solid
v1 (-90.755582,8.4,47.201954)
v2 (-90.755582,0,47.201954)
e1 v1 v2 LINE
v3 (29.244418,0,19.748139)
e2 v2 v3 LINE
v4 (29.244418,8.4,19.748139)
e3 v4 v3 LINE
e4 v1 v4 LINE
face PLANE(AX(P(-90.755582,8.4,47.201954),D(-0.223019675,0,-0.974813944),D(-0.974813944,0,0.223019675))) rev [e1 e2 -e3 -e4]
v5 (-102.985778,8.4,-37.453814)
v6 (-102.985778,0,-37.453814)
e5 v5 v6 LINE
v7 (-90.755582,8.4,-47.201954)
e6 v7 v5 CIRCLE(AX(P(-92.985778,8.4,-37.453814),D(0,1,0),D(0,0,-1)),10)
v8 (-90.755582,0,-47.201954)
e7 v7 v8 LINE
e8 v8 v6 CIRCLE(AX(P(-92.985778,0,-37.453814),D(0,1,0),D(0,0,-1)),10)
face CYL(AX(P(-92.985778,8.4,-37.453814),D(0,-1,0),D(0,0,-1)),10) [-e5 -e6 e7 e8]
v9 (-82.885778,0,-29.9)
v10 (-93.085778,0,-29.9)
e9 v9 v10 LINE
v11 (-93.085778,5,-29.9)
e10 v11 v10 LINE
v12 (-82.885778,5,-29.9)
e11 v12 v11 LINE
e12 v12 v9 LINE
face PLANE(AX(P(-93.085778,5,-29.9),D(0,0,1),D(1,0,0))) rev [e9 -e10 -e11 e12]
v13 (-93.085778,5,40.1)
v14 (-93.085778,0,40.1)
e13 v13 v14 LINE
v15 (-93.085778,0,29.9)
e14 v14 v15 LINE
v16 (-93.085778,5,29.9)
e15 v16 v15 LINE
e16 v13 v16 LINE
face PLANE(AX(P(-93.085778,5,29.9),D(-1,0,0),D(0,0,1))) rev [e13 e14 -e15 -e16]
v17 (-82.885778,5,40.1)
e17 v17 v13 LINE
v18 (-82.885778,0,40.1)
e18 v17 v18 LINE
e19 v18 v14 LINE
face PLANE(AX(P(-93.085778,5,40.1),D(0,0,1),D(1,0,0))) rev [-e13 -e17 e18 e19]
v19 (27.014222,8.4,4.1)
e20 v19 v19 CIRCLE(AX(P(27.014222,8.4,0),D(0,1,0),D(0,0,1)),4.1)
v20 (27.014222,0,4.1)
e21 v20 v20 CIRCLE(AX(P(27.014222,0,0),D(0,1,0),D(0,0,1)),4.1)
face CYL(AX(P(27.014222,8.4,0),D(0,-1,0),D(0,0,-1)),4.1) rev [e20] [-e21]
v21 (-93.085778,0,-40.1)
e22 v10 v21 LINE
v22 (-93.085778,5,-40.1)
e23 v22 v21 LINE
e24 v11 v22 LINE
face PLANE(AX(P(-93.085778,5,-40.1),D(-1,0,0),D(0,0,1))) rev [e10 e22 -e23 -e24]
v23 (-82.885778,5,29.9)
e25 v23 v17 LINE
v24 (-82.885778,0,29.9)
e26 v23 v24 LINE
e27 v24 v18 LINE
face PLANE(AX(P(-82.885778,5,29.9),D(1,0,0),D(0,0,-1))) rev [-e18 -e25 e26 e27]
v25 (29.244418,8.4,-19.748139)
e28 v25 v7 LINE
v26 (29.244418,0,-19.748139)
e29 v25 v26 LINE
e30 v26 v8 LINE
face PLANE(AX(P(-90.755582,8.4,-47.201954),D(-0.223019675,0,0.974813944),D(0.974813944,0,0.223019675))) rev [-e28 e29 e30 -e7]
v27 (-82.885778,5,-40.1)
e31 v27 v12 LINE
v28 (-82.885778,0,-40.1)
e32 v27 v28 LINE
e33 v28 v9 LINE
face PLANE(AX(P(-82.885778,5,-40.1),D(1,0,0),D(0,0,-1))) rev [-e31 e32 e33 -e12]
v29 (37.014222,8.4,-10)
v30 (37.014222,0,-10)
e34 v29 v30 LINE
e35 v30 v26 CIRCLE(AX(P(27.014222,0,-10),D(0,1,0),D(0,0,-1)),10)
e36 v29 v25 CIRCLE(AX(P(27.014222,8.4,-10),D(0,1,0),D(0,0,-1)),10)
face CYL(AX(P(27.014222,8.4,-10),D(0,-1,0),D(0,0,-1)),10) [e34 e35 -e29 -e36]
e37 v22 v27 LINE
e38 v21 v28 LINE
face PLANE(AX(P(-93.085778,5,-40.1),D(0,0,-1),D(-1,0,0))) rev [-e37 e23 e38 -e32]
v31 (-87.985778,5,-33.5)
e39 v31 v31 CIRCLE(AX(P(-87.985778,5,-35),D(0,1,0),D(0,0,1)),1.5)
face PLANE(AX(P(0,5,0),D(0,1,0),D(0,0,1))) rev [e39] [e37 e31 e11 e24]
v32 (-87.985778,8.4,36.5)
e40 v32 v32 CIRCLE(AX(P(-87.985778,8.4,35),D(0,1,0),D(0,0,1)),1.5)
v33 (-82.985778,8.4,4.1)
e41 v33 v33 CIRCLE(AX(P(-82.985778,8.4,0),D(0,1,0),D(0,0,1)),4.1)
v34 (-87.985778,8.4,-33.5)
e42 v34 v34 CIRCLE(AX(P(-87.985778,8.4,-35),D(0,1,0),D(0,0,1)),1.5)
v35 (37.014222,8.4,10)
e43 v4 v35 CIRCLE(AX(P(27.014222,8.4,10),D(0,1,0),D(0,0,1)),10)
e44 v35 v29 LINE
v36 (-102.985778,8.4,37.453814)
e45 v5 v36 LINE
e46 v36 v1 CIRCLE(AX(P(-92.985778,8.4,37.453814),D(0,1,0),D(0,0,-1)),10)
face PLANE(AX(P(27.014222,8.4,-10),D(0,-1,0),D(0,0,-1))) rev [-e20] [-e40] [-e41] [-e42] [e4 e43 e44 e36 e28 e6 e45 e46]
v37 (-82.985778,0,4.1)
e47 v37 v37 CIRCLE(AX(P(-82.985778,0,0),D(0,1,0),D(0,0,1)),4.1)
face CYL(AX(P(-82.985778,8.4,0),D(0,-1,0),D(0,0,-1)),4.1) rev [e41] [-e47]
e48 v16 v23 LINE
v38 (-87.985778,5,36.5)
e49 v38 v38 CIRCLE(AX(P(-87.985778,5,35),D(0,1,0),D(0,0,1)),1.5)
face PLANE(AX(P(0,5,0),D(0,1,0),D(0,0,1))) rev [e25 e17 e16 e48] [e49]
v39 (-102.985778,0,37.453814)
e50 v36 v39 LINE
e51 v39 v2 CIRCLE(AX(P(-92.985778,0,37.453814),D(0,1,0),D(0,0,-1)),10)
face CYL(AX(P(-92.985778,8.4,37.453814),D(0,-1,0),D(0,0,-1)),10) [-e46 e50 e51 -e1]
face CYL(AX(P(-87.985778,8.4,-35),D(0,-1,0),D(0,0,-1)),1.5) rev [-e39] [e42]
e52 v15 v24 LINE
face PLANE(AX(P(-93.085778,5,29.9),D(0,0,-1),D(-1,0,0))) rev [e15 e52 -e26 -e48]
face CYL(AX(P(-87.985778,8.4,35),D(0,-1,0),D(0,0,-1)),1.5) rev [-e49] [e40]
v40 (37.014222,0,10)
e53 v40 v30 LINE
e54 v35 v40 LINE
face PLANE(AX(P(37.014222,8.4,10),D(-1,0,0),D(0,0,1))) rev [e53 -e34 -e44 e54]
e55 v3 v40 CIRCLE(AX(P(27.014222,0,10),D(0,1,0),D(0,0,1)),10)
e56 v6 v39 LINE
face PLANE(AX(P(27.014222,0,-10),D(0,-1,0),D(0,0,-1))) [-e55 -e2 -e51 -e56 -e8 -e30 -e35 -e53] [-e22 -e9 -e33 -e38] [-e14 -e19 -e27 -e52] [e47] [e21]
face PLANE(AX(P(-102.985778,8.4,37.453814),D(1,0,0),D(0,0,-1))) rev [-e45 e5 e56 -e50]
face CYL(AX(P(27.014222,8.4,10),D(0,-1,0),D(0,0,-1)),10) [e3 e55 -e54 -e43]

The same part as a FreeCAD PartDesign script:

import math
import FreeCAD as App
import Part
import Sketcher
from FreeCAD import Vector


def add_polygon(sketch, points):
    """Adds a closed chain of lines whose ends are joined by coincident constraints."""
    first, n = sketch.GeometryCount, len(points)
    for a, b in zip(points, points[1:] + points[:1]):
        sketch.addGeometry(Part.LineSegment(App.Vector(*a, 0), App.Vector(*b, 0)), False)
    for i in range(n):
        sketch.addConstraint(Sketcher.Constraint("Coincident", first + i, 2, first + (i + 1) % n, 1))

doc = App.newDocument("Part")
body = doc.addObject("PartDesign::Body", "Body")

sketch1 = body.newObject("Sketcher::SketchObject", "Sketch")
sketch1.AttachmentSupport = (doc.getObject("XZ_Plane"), [""])
sketch1.MapMode = "FlatFace"
sketch1.addGeometry(Part.LineSegment(Vector(-90.755582, 47.201954, 0), Vector(29.244418, 19.748139, 0)), False)
sketch1.addGeometry(Part.ArcOfCircle(Part.Circle(Vector(27.014222, 10, 0), Vector(0, 0, 1), 10), math.radians(0), math.radians(77.113545)), False)
sketch1.addGeometry(Part.LineSegment(Vector(37.014222, 10, 0), Vector(37.014222, -10, 0)), False)
sketch1.addGeometry(Part.ArcOfCircle(Part.Circle(Vector(27.014222, -10, 0), Vector(0, 0, 1), 10), math.radians(-77.113545), math.radians(0)), False)
sketch1.addGeometry(Part.LineSegment(Vector(29.244418, -19.748139, 0), Vector(-90.755582, -47.201954, 0)), False)
sketch1.addGeometry(Part.ArcOfCircle(Part.Circle(Vector(-92.985778, -37.453814, 0), Vector(0, 0, 1), 10), math.radians(180), math.radians(282.886455)), False)
sketch1.addGeometry(Part.LineSegment(Vector(-102.985778, -37.453814, 0), Vector(-102.985778, 37.453814, 0)), False)
sketch1.addGeometry(Part.ArcOfCircle(Part.Circle(Vector(-92.985778, 37.453814, 0), Vector(0, 0, 1), 10), math.radians(77.113545), math.radians(180)), False)
sketch1.addGeometry(Part.Circle(Vector(-87.985778, 35, 0), Vector(0, 0, 1), 1.5), False)
sketch1.addGeometry(Part.Circle(Vector(-82.985778, 0, 0), Vector(0, 0, 1), 4.1), False)
sketch1.addGeometry(Part.Circle(Vector(-87.985778, -35, 0), Vector(0, 0, 1), 1.5), False)
sketch1.addGeometry(Part.Circle(Vector(27.014222, 0, 0), Vector(0, 0, 1), 4.1), False)
sketch1.addConstraint(Sketcher.Constraint("Tangent", 0, 2, 1, 2))
sketch1.addConstraint(Sketcher.Constraint("Tangent", 1, 1, 2, 1))
sketch1.addConstraint(Sketcher.Constraint("Tangent", 2, 2, 3, 2))
sketch1.addConstraint(Sketcher.Constraint("Tangent", 3, 1, 4, 1))
sketch1.addConstraint(Sketcher.Constraint("Tangent", 4, 2, 5, 2))
sketch1.addConstraint(Sketcher.Constraint("Tangent", 5, 1, 6, 1))
sketch1.addConstraint(Sketcher.Constraint("Tangent", 6, 2, 7, 2))
sketch1.addConstraint(Sketcher.Constraint("Tangent", 7, 1, 0, 1))
sketch1.addConstraint(Sketcher.Constraint("Vertical", 2))
sketch1.addConstraint(Sketcher.Constraint("Vertical", 6))
sketch1.addConstraint(Sketcher.Constraint("Equal", 1, 3))
sketch1.addConstraint(Sketcher.Constraint("Equal", 3, 5))
sketch1.addConstraint(Sketcher.Constraint("Equal", 5, 7))
sketch1.addConstraint(Sketcher.Constraint("Equal", 8, 10))
sketch1.addConstraint(Sketcher.Constraint("Equal", 9, 11))
sketch1.addConstraint(Sketcher.Constraint("Symmetric", 8, 3, 10, 3, -1))
sketch1.addConstraint(Sketcher.Constraint("Symmetric", 0, 2, 3, 1, -1))
sketch1.addConstraint(Sketcher.Constraint("PointOnObject", 9, 3, -1))
sketch1.addConstraint(Sketcher.Constraint("PointOnObject", 11, 3, -1))
sketch1.addConstraint(Sketcher.Constraint("Vertical", 3, 3, 11, 3))
sketch1.addConstraint(Sketcher.Constraint("Diameter", 8, 3.0))
sketch1.addConstraint(Sketcher.Constraint("Radius", 1, 10.0))
sketch1.addConstraint(Sketcher.Constraint("Diameter", 9, 8.2))
sketch1.addConstraint(Sketcher.Constraint("DistanceY", 2, 2, 2, 1, 20.0))
sketch1.addConstraint(Sketcher.Constraint("DistanceY", -1, 1, 8, 3, 35.0))
sketch1.addConstraint(Sketcher.Constraint("DistanceX", 5, 3, 3, 3, 120.0))
sketch1.addConstraint(Sketcher.Constraint("DistanceX", 7, 3, 8, 3, 5.0))
sketch1.addConstraint(Sketcher.Constraint("DistanceX", 8, 3, 9, 3, 5.0))
sketch1.addConstraint(Sketcher.Constraint("DistanceY", 6, 1, 6, 2, 74.907629))
sketch1.addConstraint(Sketcher.Constraint("DistanceX", -1, 1, 1, 3, 27.014222))
pad1 = body.newObject("PartDesign::Pad", "Pad")
pad1.Profile = sketch1
pad1.Length = 8.4
pad1.Reversed = True

sketch2 = body.newObject("Sketcher::SketchObject", "Sketch001")
sketch2.AttachmentSupport = (doc.getObject("XZ_Plane"), [""])
sketch2.MapMode = "FlatFace"
add_polygon(sketch2, [(-93.085778, 40.1), (-93.085778, 29.9), (-82.885778, 29.9), (-82.885778, 40.1)])
add_polygon(sketch2, [(-93.085778, -29.9), (-93.085778, -40.1), (-82.885778, -40.1), (-82.885778, -29.9)])
sketch2.addConstraint(Sketcher.Constraint("Vertical", 0))
sketch2.addConstraint(Sketcher.Constraint("Horizontal", 1))
sketch2.addConstraint(Sketcher.Constraint("Vertical", 2))
sketch2.addConstraint(Sketcher.Constraint("Horizontal", 3))
sketch2.addConstraint(Sketcher.Constraint("Vertical", 4))
sketch2.addConstraint(Sketcher.Constraint("Horizontal", 5))
sketch2.addConstraint(Sketcher.Constraint("Vertical", 6))
sketch2.addConstraint(Sketcher.Constraint("Horizontal", 7))
sketch2.addConstraint(Sketcher.Constraint("Symmetric", 3, 2, 4, 2, -1))
sketch2.addConstraint(Sketcher.Constraint("Symmetric", 1, 2, 6, 2, -1))
sketch2.addConstraint(Sketcher.Constraint("Equal", 7, 0))
sketch2.addConstraint(Sketcher.Constraint("DistanceX", 1, 1, 1, 2, 10.2))
sketch2.addConstraint(Sketcher.Constraint("DistanceY", 4, 2, 0, 2, 70.0))
sketch2.addConstraint(Sketcher.Constraint("DistanceX", 0, 2, -1, 1, 93.085778))
pocket1 = body.newObject("PartDesign::Pocket", "Pocket")
pocket1.Profile = sketch2
pocket1.Length = 5

doc.recompute()
